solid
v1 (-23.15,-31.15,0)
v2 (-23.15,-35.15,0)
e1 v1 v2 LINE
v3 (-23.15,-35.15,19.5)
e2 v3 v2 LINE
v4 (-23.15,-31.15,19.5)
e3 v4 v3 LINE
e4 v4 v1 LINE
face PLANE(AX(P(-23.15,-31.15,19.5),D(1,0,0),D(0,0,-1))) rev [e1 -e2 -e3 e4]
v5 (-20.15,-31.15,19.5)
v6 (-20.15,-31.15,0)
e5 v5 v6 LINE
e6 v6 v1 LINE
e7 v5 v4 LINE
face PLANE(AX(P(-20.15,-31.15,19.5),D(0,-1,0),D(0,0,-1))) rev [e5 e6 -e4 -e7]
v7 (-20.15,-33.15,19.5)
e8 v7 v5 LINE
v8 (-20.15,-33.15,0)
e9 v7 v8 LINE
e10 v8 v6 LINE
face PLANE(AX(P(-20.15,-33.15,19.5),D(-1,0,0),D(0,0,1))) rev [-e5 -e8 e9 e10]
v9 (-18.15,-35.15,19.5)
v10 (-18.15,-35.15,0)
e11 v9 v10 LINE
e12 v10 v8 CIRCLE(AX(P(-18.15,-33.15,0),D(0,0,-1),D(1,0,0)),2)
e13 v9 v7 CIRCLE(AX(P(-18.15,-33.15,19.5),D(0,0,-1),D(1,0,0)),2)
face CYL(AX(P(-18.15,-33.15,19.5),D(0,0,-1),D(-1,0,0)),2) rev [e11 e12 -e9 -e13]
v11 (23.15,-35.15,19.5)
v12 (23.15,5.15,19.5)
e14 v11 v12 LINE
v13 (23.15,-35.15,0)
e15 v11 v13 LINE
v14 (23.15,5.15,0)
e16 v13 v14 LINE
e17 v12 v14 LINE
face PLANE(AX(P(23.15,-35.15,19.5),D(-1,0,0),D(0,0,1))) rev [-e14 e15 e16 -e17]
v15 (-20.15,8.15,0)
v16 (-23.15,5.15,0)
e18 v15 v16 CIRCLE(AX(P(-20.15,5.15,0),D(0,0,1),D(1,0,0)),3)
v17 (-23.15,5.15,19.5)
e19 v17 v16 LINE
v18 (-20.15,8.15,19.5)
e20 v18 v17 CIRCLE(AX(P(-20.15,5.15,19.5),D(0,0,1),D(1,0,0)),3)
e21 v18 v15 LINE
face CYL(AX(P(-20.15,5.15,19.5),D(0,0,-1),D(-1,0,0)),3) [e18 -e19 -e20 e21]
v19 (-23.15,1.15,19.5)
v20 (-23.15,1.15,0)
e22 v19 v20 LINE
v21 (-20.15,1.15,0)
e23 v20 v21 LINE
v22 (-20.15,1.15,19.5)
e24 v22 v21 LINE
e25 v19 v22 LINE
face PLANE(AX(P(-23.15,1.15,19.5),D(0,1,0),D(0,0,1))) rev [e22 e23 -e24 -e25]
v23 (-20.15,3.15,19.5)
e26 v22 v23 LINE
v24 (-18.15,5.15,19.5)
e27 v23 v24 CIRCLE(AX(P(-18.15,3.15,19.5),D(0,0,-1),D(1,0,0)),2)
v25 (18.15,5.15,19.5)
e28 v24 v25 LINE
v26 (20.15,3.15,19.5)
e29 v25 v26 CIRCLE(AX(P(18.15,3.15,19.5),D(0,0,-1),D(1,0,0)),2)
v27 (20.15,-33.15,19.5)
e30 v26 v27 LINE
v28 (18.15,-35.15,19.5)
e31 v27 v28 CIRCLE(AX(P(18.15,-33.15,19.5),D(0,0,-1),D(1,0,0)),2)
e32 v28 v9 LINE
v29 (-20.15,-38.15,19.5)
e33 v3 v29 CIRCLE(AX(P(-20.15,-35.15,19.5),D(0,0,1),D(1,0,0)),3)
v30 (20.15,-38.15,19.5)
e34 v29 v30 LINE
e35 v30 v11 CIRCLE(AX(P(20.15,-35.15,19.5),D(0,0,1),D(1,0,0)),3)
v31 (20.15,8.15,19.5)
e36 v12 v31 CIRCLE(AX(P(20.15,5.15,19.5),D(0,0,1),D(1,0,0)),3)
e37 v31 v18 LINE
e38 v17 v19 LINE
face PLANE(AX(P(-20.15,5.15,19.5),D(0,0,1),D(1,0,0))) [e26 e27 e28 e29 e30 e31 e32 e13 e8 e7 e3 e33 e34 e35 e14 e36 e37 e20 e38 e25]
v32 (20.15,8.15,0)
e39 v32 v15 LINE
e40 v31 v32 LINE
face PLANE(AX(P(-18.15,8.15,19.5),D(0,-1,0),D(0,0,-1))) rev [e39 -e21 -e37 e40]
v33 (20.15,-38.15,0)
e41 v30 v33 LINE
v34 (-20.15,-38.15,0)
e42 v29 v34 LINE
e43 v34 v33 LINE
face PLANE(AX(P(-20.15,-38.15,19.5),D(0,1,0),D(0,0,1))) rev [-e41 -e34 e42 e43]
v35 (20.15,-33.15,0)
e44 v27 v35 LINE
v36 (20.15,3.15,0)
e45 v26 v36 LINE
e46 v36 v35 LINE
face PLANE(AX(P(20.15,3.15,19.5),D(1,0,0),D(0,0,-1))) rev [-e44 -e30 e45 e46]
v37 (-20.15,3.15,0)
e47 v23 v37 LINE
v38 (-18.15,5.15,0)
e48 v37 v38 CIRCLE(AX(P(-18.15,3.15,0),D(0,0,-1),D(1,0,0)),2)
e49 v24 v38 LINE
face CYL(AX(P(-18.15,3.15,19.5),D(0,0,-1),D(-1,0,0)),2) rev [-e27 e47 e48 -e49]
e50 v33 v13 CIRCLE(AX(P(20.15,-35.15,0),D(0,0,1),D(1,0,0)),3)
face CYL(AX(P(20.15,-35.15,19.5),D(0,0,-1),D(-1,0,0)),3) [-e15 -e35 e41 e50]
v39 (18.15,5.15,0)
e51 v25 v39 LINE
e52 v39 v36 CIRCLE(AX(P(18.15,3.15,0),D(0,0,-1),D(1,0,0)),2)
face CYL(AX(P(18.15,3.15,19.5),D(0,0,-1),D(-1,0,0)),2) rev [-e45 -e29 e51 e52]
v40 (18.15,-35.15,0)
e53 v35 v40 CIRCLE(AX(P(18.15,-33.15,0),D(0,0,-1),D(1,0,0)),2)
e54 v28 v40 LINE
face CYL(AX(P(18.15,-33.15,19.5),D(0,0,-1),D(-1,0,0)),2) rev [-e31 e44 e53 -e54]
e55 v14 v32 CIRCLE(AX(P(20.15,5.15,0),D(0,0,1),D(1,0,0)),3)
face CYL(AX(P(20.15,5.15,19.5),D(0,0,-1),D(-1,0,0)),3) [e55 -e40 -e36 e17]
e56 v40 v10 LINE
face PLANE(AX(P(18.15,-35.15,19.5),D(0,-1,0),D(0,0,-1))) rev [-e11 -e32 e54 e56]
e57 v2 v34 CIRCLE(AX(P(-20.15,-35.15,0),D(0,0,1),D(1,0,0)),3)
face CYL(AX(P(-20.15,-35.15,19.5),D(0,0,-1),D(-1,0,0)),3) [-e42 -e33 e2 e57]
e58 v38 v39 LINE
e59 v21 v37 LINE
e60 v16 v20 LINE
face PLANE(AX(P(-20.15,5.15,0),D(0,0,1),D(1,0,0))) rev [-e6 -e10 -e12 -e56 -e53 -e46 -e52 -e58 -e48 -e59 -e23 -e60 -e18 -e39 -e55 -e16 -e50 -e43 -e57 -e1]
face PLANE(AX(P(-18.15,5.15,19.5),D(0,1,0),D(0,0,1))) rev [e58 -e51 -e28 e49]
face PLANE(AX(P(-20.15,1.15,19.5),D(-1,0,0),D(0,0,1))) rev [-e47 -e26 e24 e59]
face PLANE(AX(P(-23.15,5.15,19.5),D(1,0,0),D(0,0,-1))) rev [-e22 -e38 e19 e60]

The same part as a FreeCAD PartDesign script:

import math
import FreeCAD as App
import Part
import Sketcher

V = App.Vector

doc = App.newDocument("Part")
body = doc.addObject("PartDesign::Body", "Body")

sketch1 = body.newObject("Sketcher::SketchObject", "Sketch")
sketch1.AttachmentSupport = (doc.getObject("XY_Plane"), [""])
sketch1.MapMode = "FlatFace"
sketch1.addGeometry(Part.ArcOfCircle(Part.Circle(V(-20.2, 5.2, 0), V(0, 0, 1), 3), math.radians(90), math.radians(180)), False)
sketch1.addGeometry(Part.LineSegment(V(-23.1, 5.2, 0), V(-23.1, 1.1, 0)), False)
sketch1.addGeometry(Part.LineSegment(V(-23.1, 1.1, 0), V(-20.1, 1.1, 0)), False)
sketch1.addGeometry(Part.LineSegment(V(-20.1, 1.1, 0), V(-20.1, 3.1, 0)), False)
sketch1.addGeometry(Part.ArcOfCircle(Part.Circle(V(-18.1, 3.1, 0), V(0, 0, 1), 2), math.radians(90), math.radians(180)), False)
sketch1.addGeometry(Part.LineSegment(V(-18.1, 5.2, 0), V(18.1, 5.2, 0)), False)
sketch1.addGeometry(Part.ArcOfCircle(Part.Circle(V(18.1, 3.1, 0), V(0, 0, 1), 2), math.radians(0), math.radians(90)), False)
sketch1.addGeometry(Part.LineSegment(V(20.1, 3.1, 0), V(20.1, -33.1, 0)), False)
sketch1.addGeometry(Part.ArcOfCircle(Part.Circle(V(18.1, -33.1, 0), V(0, 0, 1), 2), math.radians(-90), math.radians(0)), False)
sketch1.addGeometry(Part.LineSegment(V(18.1, -35.1, 0), V(-18.1, -35.1, 0)), False)
sketch1.addGeometry(Part.ArcOfCircle(Part.Circle(V(-18.1, -33.1, 0), V(0, 0, 1), 2), math.radians(-180), math.radians(-90)), False)
sketch1.addGeometry(Part.LineSegment(V(-20.1, -33.1, 0), V(-20.1, -31.1, 0)), False)
sketch1.addGeometry(Part.LineSegment(V(-20.1, -31.1, 0), V(-23.1, -31.1, 0)), False)
sketch1.addGeometry(Part.LineSegment(V(-23.1, -31.1, 0), V(-23.1, -35.1, 0)), False)
sketch1.addGeometry(Part.ArcOfCircle(Part.Circle(V(-20.2, -35.2, 0), V(0, 0, 1), 3), math.radians(180), math.radians(270)), False)
sketch1.addGeometry(Part.LineSegment(V(-20.1, -38.1, 0), V(20.1, -38.1, 0)), False)
sketch1.addGeometry(Part.ArcOfCircle(Part.Circle(V(20.2, -35.2, 0), V(0, 0, 1), 3), math.radians(-90), math.radians(0)), False)
sketch1.addGeometry(Part.LineSegment(V(23.1, -35.1, 0), V(23.1, 5.2, 0)), False)
sketch1.addGeometry(Part.ArcOfCircle(Part.Circle(V(20.2, 5.2, 0), V(0, 0, 1), 3), math.radians(0), math.radians(90)), False)
sketch1.addGeometry(Part.LineSegment(V(20.1, 8.2, 0), V(-20.1, 8.2, 0)), False)
sketch1.addConstraint(Sketcher.Constraint("Tangent", 0, 2, 1, 1))
sketch1.addConstraint(Sketcher.Constraint("Coincident", 1, 2, 2, 1))
sketch1.addConstraint(Sketcher.Constraint("Coincident", 2, 2, 3, 1))
sketch1.addConstraint(Sketcher.Constraint("Tangent", 3, 2, 4, 2))
sketch1.addConstraint(Sketcher.Constraint("Tangent", 4, 1, 5, 1))
sketch1.addConstraint(Sketcher.Constraint("Tangent", 5, 2, 6, 2))
sketch1.addConstraint(Sketcher.Constraint("Tangent", 6, 1, 7, 1))
sketch1.addConstraint(Sketcher.Constraint("Tangent", 7, 2, 8, 2))
sketch1.addConstraint(Sketcher.Constraint("Tangent", 8, 1, 9, 1))
sketch1.addConstraint(Sketcher.Constraint("Tangent", 9, 2, 10, 2))
sketch1.addConstraint(Sketcher.Constraint("Tangent", 10, 1, 11, 1))
sketch1.addConstraint(Sketcher.Constraint("Coincident", 11, 2, 12, 1))
sketch1.addConstraint(Sketcher.Constraint("Coincident", 12, 2, 13, 1))
sketch1.addConstraint(Sketcher.Constraint("Tangent", 13, 2, 14, 1))
sketch1.addConstraint(Sketcher.Constraint("Tangent", 14, 2, 15, 1))
sketch1.addConstraint(Sketcher.Constraint("Tangent", 15, 2, 16, 1))
sketch1.addConstraint(Sketcher.Constraint("Tangent", 16, 2, 17, 1))
sketch1.addConstraint(Sketcher.Constraint("Tangent", 17, 2, 18, 1))
sketch1.addConstraint(Sketcher.Constraint("Tangent", 18, 2, 19, 1))
sketch1.addConstraint(Sketcher.Constraint("Tangent", 19, 2, 0, 1))
sketch1.addConstraint(Sketcher.Constraint("Vertical", 1))
sketch1.addConstraint(Sketcher.Constraint("Horizontal", 2))
sketch1.addConstraint(Sketcher.Constraint("Vertical", 3))
sketch1.addConstraint(Sketcher.Constraint("Horizontal", 5))
sketch1.addConstraint(Sketcher.Constraint("Vertical", 7))
sketch1.addConstraint(Sketcher.Constraint("Horizontal", 9))
sketch1.addConstraint(Sketcher.Constraint("Vertical", 11))
sketch1.addConstraint(Sketcher.Constraint("Horizontal", 12))
sketch1.addConstraint(Sketcher.Constraint("Vertical", 13))
sketch1.addConstraint(Sketcher.Constraint("Horizontal", 15))
sketch1.addConstraint(Sketcher.Constraint("Vertical", 17))
sketch1.addConstraint(Sketcher.Constraint("Horizontal", 19))
sketch1.addConstraint(Sketcher.Constraint("Equal", 4, 6))
sketch1.addConstraint(Sketcher.Constraint("Equal", 6, 8))
sketch1.addConstraint(Sketcher.Constraint("Equal", 8, 10))
sketch1.addConstraint(Sketcher.Constraint("Equal", 0, 14))
sketch1.addConstraint(Sketcher.Constraint("Equal", 14, 16))
sketch1.addConstraint(Sketcher.Constraint("Equal", 16, 18))
sketch1.addConstraint(Sketcher.Constraint("Horizontal", 0, 2, 4, 1))
sketch1.addConstraint(Sketcher.Constraint("Horizontal", 16, 3, 8, 1))
sketch1.addConstraint(Sketcher.Constraint("Vertical", 4, 3, 10, 3))
sketch1.addConstraint(Sketcher.Constraint("Vertical", 0, 3, 14, 3))
sketch1.addConstraint(Sketcher.Constraint("Vertical", 14, 3, 2, 2))
sketch1.addConstraint(Sketcher.Constraint("Vertical", 18, 3, 6, 1))
sketch1.addConstraint(Sketcher.Constraint("Equal", 9, 7))
sketch1.addConstraint(Sketcher.Constraint("Equal", 3, 11))
sketch1.addConstraint(Sketcher.Constraint("Radius", 0, 3.0))
sketch1.addConstraint(Sketcher.Constraint("Radius", 4, 2.0))
sketch1.addConstraint(Sketcher.Constraint("DistanceY", 1, 2, 1, 1, 4.0))
sketch1.addConstraint(Sketcher.Constraint("DistanceX", 5, 1, 5, 2, 36.3))
sketch1.addConstraint(Sketcher.Constraint("DistanceX", 0, 3, -1, 1, 20.15))
sketch1.addConstraint(Sketcher.Constraint("DistanceY", -1, 1, 0, 3, 5.15))
pad1 = body.newObject("PartDesign::Pad", "Pad")
pad1.Profile = sketch1
pad1.Length = 19.5

doc.recompute()
